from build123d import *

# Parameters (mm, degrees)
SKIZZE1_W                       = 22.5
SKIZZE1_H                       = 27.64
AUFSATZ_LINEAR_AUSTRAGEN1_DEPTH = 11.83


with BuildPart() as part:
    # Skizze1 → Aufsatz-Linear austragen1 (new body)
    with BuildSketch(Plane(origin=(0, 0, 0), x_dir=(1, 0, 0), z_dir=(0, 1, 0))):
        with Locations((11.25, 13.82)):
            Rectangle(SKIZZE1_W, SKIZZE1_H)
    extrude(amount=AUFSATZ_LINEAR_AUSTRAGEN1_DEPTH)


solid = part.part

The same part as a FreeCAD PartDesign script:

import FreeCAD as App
import Part
import Sketcher
from FreeCAD import Vector
Q = App.Units.Quantity


def add_polygon(sketch, points):
    """Adds a closed chain of lines whose ends are joined by coincident constraints."""
    first, n = sketch.GeometryCount, len(points)
    for a, b in zip(points, points[1:] + points[:1]):
        sketch.addGeometry(Part.LineSegment(App.Vector(*a, 0), App.Vector(*b, 0)), False)
    for i in range(n):
        sketch.addConstraint(Sketcher.Constraint("Coincident", first + i, 2, first + (i + 1) % n, 1))

doc = App.newDocument("Part")
body = doc.addObject("PartDesign::Body", "Body")

sketch1 = body.newObject("Sketcher::SketchObject", "Sketch")
sketch1.AttachmentSupport = (doc.getObject("XZ_Plane"), [""])
sketch1.MapMode = "FlatFace"
add_polygon(sketch1, [(0, -28), (0, 0), (22, 0), (22, -28)])
sketch1.addConstraint([
    Sketcher.Constraint("Vertical", 0),
    Sketcher.Constraint("Horizontal", 1),
    Sketcher.Constraint("Vertical", 2),
    Sketcher.Constraint("Horizontal", 3),
    Sketcher.Constraint("Coincident", 0, 2, -1, 1),
    Sketcher.Constraint("DistanceX", 1, 1, 1, 2, Q("22.5 mm")),
    Sketcher.Constraint("DistanceY", 0, 1, 0, 2, Q("27.64 mm")),
])
pad1 = body.newObject("PartDesign::Pad", "Pad")
pad1.Profile = sketch1
pad1.Length = 11.83
pad1.Reversed = True

doc.recompute()
